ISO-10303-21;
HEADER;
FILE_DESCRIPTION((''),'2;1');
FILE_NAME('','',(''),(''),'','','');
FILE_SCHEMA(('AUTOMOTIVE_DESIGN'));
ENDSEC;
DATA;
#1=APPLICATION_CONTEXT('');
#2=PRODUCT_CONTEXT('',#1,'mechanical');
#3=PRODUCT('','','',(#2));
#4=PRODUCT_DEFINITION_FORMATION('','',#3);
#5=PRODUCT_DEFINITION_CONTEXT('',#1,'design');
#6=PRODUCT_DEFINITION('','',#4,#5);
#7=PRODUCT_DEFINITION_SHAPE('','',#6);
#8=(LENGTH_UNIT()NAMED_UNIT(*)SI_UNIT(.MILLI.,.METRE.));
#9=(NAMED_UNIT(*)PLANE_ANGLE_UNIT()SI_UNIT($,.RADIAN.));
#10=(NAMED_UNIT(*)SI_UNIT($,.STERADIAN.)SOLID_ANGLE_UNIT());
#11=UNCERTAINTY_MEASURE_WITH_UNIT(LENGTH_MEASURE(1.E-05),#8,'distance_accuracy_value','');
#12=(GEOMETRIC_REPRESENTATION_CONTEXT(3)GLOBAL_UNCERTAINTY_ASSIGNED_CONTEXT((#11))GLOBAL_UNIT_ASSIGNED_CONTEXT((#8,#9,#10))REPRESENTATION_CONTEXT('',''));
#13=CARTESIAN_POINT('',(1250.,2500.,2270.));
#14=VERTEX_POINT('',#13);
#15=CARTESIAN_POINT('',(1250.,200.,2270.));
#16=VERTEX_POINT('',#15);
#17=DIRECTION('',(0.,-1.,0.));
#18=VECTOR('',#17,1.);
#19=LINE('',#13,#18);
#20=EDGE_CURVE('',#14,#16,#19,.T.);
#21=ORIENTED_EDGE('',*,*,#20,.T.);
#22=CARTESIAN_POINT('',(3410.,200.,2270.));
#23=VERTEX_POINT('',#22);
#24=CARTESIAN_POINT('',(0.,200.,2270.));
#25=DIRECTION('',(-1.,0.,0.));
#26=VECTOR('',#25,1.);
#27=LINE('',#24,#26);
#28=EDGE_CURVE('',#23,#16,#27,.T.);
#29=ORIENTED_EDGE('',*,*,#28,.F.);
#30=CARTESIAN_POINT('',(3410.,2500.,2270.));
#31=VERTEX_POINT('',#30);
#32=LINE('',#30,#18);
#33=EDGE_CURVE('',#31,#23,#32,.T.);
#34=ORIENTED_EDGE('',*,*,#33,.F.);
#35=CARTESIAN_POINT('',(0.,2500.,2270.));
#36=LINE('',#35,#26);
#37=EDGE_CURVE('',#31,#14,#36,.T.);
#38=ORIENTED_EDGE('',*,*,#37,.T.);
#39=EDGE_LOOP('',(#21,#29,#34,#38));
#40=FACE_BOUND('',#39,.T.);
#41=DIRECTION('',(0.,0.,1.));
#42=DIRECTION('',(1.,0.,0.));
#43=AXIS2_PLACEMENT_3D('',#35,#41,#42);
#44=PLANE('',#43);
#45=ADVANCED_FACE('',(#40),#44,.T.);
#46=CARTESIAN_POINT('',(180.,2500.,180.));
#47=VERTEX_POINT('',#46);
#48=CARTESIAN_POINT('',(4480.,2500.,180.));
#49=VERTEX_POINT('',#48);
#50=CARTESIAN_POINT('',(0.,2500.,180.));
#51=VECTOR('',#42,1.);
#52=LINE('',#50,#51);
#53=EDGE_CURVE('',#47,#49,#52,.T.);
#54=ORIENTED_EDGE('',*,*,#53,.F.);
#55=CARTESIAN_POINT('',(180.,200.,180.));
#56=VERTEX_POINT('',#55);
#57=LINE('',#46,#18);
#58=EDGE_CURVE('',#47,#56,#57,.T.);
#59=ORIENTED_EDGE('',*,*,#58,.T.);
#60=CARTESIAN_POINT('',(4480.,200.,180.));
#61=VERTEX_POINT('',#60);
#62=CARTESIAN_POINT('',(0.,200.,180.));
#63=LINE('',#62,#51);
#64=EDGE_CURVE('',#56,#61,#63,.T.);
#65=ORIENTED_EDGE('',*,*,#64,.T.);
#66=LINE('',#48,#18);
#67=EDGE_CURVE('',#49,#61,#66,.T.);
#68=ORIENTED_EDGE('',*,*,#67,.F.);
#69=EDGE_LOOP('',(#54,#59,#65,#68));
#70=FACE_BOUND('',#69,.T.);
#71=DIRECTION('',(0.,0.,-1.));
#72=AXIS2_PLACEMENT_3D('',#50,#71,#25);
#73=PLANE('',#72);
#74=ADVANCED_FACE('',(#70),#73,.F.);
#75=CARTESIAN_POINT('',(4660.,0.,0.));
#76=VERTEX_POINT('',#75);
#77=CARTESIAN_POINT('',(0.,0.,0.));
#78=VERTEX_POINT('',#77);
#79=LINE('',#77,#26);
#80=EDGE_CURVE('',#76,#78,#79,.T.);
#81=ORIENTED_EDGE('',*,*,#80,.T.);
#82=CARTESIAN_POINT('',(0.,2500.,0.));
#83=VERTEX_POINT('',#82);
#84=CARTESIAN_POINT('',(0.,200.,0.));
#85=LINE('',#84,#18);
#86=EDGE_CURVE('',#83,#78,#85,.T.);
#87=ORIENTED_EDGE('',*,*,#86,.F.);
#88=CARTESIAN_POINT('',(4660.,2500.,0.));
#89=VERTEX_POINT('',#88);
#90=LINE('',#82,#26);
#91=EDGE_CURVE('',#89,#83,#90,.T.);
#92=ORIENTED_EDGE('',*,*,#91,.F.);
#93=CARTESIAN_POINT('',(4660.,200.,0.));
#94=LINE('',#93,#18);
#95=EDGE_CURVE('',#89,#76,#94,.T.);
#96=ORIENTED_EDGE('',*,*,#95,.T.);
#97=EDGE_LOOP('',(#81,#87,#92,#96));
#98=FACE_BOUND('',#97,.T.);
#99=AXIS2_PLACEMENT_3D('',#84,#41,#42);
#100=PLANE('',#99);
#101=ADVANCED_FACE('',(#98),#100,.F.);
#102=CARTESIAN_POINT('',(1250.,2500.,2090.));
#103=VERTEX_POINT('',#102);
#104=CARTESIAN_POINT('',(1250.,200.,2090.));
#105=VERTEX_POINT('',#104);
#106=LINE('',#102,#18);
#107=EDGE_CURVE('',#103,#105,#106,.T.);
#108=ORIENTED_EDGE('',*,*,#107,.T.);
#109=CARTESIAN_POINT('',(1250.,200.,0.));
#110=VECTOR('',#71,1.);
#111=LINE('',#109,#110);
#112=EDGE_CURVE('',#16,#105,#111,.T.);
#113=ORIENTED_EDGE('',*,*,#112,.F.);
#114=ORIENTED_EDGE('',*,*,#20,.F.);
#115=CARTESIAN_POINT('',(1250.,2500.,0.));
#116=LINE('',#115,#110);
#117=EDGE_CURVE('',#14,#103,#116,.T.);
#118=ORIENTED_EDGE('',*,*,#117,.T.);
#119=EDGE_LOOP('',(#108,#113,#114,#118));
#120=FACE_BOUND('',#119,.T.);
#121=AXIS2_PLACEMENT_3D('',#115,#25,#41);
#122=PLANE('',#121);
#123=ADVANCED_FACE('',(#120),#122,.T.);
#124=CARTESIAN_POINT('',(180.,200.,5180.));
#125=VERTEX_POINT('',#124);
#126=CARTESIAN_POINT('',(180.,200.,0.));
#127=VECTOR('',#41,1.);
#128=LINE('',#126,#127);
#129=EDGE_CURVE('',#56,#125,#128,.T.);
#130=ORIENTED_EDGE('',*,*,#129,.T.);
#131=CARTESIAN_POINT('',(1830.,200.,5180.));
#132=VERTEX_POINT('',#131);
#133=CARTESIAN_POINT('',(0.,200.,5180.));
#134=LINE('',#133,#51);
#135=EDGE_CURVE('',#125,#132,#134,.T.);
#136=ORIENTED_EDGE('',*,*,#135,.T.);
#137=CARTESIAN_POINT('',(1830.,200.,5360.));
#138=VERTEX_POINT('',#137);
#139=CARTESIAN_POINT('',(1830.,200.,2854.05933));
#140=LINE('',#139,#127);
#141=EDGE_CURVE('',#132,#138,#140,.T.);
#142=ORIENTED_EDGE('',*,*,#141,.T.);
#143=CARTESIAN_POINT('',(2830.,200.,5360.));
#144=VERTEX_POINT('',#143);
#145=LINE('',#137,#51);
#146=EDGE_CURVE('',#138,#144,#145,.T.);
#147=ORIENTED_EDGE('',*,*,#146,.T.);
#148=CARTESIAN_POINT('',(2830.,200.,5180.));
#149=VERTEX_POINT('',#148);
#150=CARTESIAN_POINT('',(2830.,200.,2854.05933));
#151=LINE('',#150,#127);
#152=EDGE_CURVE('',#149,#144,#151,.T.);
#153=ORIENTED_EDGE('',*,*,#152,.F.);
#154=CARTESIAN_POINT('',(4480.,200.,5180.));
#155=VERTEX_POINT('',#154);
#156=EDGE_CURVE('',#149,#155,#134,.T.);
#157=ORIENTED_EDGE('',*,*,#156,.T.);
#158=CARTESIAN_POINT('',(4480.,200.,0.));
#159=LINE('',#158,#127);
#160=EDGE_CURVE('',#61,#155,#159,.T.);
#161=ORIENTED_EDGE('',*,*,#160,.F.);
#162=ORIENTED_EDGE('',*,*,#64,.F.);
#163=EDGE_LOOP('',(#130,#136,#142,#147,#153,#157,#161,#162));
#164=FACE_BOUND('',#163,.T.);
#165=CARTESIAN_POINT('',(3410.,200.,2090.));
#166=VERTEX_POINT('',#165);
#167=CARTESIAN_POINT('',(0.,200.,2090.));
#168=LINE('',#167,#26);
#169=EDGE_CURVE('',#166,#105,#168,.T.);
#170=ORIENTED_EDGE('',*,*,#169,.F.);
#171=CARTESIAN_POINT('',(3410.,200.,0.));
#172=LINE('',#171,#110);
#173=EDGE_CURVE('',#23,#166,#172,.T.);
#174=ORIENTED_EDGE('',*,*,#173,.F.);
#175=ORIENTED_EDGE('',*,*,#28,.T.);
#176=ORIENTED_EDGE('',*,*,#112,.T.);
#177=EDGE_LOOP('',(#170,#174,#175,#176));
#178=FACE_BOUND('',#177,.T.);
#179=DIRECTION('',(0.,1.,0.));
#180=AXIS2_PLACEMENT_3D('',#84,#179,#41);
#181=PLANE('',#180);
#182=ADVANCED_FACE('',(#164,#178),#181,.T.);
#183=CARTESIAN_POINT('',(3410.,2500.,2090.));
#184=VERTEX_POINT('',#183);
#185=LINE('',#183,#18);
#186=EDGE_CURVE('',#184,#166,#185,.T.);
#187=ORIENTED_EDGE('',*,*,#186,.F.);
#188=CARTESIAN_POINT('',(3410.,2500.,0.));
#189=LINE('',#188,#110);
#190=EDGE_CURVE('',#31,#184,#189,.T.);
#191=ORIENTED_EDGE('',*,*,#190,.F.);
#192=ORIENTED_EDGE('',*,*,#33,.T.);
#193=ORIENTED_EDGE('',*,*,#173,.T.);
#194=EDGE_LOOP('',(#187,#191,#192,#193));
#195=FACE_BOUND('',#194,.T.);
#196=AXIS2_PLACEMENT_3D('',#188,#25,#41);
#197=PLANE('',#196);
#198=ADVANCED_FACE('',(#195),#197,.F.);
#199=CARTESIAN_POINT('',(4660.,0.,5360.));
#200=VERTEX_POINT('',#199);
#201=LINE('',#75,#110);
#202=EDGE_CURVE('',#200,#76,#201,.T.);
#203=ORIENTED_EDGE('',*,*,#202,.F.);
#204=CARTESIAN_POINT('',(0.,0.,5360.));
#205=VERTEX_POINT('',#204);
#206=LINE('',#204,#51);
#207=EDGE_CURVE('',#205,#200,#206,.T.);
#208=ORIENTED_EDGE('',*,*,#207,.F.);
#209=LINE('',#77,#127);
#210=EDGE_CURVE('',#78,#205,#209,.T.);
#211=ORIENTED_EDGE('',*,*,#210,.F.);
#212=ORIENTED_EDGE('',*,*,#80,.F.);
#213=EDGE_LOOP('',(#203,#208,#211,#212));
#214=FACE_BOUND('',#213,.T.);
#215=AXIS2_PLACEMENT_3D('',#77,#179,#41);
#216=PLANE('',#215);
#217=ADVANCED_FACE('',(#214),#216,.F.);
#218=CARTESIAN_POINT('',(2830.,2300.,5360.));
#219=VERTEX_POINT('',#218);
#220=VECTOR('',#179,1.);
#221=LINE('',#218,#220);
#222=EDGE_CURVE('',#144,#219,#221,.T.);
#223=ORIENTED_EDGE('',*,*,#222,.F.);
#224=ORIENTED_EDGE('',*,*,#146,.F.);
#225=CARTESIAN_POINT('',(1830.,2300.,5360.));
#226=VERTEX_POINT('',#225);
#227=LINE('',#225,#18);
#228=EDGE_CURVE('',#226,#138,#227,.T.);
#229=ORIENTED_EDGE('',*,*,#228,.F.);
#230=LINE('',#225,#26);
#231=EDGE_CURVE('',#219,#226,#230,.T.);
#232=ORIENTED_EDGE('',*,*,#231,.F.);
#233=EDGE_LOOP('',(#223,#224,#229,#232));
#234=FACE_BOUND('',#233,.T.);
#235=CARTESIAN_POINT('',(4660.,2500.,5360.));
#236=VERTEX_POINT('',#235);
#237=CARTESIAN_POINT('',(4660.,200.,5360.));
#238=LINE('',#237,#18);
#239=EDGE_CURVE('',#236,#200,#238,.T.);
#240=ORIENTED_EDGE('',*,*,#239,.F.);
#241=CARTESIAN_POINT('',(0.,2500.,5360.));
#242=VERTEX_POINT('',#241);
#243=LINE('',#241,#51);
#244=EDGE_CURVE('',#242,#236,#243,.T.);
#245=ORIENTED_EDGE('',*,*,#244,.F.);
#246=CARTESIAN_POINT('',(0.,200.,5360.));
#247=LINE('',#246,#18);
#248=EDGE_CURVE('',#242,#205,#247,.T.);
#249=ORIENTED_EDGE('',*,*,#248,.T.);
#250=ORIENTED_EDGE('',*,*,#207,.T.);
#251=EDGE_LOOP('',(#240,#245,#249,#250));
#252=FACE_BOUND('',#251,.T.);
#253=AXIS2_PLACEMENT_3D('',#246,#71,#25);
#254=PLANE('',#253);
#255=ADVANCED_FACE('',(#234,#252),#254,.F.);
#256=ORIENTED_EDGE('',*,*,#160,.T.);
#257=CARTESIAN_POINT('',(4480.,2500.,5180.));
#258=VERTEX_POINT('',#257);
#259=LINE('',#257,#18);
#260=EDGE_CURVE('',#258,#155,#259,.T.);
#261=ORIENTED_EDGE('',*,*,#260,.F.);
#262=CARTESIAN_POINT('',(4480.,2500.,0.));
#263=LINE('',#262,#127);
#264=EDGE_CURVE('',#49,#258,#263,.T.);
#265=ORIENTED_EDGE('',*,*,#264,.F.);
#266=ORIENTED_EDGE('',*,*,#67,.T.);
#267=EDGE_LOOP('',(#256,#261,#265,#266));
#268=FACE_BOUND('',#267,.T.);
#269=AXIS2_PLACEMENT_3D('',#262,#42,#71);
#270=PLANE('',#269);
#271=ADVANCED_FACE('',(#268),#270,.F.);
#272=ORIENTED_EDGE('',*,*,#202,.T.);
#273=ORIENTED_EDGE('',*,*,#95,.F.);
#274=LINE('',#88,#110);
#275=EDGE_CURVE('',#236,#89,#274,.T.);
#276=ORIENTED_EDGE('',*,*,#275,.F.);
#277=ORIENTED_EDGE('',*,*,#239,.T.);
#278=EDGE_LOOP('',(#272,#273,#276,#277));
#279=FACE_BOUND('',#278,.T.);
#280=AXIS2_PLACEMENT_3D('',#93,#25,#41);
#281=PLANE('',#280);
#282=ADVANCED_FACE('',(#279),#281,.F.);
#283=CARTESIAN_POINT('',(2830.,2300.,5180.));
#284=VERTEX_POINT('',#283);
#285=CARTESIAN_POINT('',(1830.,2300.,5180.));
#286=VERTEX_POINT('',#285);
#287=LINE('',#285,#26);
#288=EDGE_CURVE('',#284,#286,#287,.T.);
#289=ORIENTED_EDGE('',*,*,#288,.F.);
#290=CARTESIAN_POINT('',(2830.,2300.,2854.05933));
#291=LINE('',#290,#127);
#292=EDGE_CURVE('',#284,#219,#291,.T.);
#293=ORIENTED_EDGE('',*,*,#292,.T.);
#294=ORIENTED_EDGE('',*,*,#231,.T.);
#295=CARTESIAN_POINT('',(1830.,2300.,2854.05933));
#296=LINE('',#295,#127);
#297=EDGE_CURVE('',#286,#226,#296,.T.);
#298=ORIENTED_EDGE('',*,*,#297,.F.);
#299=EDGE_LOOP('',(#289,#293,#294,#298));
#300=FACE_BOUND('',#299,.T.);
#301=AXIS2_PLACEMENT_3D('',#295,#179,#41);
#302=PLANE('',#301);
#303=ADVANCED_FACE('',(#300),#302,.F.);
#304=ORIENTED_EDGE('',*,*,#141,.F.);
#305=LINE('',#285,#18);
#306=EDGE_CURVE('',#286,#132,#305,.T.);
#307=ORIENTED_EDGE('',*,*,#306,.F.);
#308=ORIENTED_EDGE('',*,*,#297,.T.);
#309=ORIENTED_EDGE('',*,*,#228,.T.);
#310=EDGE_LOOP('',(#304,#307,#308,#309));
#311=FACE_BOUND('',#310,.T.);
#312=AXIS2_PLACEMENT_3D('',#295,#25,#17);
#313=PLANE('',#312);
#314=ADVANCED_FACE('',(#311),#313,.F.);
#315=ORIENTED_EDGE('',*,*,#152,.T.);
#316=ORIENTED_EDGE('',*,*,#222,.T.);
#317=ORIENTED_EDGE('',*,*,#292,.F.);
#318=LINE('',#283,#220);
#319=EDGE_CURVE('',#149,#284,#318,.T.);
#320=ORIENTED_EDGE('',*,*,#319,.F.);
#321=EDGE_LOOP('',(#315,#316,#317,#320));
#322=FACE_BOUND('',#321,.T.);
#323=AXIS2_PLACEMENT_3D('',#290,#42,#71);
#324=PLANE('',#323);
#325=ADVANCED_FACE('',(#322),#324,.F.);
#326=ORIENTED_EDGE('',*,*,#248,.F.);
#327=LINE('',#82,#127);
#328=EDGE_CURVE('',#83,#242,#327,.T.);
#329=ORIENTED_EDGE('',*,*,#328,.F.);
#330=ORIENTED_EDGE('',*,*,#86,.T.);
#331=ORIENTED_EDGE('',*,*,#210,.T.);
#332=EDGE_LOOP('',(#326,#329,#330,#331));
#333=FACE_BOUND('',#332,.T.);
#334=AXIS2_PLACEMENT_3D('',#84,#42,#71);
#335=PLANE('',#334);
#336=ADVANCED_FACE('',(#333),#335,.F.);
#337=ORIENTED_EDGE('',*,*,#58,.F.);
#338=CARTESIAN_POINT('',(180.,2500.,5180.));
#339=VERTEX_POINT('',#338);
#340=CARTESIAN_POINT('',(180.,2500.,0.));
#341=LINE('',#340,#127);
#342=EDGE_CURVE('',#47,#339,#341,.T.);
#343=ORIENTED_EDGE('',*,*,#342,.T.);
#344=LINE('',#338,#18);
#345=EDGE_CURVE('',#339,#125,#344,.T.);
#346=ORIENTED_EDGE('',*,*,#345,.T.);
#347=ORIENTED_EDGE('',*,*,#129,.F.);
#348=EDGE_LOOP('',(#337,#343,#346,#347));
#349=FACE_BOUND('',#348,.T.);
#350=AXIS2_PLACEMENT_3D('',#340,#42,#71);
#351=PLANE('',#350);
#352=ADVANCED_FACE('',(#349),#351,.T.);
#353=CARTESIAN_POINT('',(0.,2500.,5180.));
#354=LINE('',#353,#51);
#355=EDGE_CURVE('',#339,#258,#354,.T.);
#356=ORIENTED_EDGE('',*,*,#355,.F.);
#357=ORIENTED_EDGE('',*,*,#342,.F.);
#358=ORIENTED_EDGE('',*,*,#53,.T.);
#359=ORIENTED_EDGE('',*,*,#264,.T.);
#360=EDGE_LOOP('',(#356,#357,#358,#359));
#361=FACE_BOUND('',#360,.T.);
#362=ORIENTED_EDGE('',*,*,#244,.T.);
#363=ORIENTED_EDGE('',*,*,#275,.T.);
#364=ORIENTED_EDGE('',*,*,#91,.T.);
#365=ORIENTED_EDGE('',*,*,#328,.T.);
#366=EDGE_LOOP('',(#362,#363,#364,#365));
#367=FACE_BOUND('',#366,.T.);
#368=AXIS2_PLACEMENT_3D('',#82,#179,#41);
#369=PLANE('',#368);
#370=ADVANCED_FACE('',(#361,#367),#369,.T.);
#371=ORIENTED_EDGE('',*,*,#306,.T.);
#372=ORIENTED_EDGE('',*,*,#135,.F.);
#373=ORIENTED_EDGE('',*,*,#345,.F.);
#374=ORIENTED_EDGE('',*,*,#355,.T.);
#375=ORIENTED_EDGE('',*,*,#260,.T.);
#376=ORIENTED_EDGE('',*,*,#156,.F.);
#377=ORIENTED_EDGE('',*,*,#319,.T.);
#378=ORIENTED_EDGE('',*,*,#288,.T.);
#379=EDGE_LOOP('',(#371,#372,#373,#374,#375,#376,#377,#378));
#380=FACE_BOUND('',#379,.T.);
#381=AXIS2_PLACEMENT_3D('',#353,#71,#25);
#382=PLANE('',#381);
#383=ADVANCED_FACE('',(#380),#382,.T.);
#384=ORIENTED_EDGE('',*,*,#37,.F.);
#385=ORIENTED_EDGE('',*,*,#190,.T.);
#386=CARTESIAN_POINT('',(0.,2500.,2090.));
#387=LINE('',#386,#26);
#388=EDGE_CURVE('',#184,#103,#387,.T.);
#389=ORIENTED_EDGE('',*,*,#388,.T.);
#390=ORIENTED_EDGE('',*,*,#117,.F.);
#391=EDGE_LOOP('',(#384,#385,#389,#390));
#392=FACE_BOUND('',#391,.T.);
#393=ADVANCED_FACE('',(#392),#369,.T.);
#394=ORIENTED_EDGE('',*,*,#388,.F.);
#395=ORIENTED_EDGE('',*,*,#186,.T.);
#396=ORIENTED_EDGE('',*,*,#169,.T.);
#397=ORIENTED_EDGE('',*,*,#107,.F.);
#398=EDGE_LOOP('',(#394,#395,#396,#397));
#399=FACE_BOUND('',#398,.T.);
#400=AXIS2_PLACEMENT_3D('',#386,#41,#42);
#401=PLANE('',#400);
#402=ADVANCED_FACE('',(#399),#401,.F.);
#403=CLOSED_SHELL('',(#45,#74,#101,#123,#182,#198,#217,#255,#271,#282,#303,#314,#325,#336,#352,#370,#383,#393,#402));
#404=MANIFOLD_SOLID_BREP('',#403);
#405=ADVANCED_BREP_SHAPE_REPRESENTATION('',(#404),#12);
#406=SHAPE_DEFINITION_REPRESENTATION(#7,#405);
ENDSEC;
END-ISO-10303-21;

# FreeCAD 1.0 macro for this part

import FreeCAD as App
import Part
import Sketcher

V = App.Vector
Q = App.Units.Quantity

doc = App.newDocument("Part")
body = doc.addObject("PartDesign::Body", "Body")

# Sketch on XZ plane
sketch1 = doc.addObject("Sketcher::SketchObject", "Sketch")
body.addObject(sketch1)
sketch1.AttachmentSupport = (doc.XZ_Plane, [""])
sketch1.MapMode = "FlatFace"
sketch1.addGeometry([
    Part.LineSegment(V(0, 0, 0), V(0, 5360, 0)),
    Part.LineSegment(V(0, 5360, 0), V(4660, 5360, 0)),
    Part.LineSegment(V(4660, 5360, 0), V(4660, 0, 0)),
    Part.LineSegment(V(4660, 0, 0), V(0, 0, 0)),
], False)
sketch1.addConstraint([
    Sketcher.Constraint("Coincident", 0, 2, 1, 1),
    Sketcher.Constraint("Coincident", 1, 2, 2, 1),
    Sketcher.Constraint("Coincident", 2, 2, 3, 1),
    Sketcher.Constraint("Coincident", 3, 2, 0, 1),
    Sketcher.Constraint("Vertical", 0),
    Sketcher.Constraint("Horizontal", 1),
    Sketcher.Constraint("Vertical", 2),
    Sketcher.Constraint("Horizontal", 3),
    Sketcher.Constraint("Coincident", 3, 2, -1, 1),
    Sketcher.Constraint("DistanceX", 1, 1, 1, 2, Q("4660 mm")),
    Sketcher.Constraint("DistanceY", 0, 1, 0, 2, Q("5360 mm")),
])
pad1 = doc.addObject("PartDesign::Pad", "Pad")
body.addObject(pad1)
pad1.Profile = sketch1
pad1.Length = 200
pad1.Reversed = True

# Sketch on XZ plane
sketch2 = doc.addObject("Sketcher::SketchObject", "Sketch001")
body.addObject(sketch2)
sketch2.AttachmentSupport = (doc.XZ_Plane, [""])
sketch2.MapMode = "FlatFace"
sketch2.AttachmentOffset = App.Placement(V(0, 0, -200), App.Rotation())
sketch2.addGeometry([
    Part.LineSegment(V(0, 0, 0), V(0, 5360, 0)),  # 0
    Part.LineSegment(V(0, 5360, 0), V(4660, 5360, 0)),  # 1
    Part.LineSegment(V(4660, 5360, 0), V(4660, 0, 0)),  # 2
    Part.LineSegment(V(4660, 0, 0), V(0, 0, 0)),  # 3
    Part.LineSegment(V(4480, 5180, 0), V(180, 5180, 0)),  # 4
    Part.LineSegment(V(180, 5180, 0), V(180, 180, 0)),  # 5
    Part.LineSegment(V(180, 180, 0), V(4480, 180, 0)),  # 6
    Part.LineSegment(V(4480, 180, 0), V(4480, 5180, 0)),  # 7
    Part.LineSegment(V(1250, 2090, 0), V(1250, 2270, 0)),  # 8
    Part.LineSegment(V(1250, 2270, 0), V(3410, 2270, 0)),  # 9
    Part.LineSegment(V(3410, 2270, 0), V(3410, 2090, 0)),  # 10
    Part.LineSegment(V(3410, 2090, 0), V(1250, 2090, 0)),  # 11
], False)
sketch2.addConstraint([
    Sketcher.Constraint("Coincident", 0, 2, 1, 1),
    Sketcher.Constraint("Coincident", 1, 2, 2, 1),
    Sketcher.Constraint("Coincident", 2, 2, 3, 1),
    Sketcher.Constraint("Coincident", 3, 2, 0, 1),
    Sketcher.Constraint("Coincident", 4, 2, 5, 1),
    Sketcher.Constraint("Coincident", 5, 2, 6, 1),
    Sketcher.Constraint("Coincident", 6, 2, 7, 1),
    Sketcher.Constraint("Coincident", 7, 2, 4, 1),
    Sketcher.Constraint("Coincident", 8, 2, 9, 1),
    Sketcher.Constraint("Coincident", 9, 2, 10, 1),
    Sketcher.Constraint("Coincident", 10, 2, 11, 1),
    Sketcher.Constraint("Coincident", 11, 2, 8, 1),
    Sketcher.Constraint("Vertical", 0),
    Sketcher.Constraint("Horizontal", 1),
    Sketcher.Constraint("Vertical", 2),
    Sketcher.Constraint("Horizontal", 3),
    Sketcher.Constraint("Horizontal", 4),
    Sketcher.Constraint("Vertical", 5),
    Sketcher.Constraint("Horizontal", 6),
    Sketcher.Constraint("Vertical", 7),
    Sketcher.Constraint("Vertical", 8),
    Sketcher.Constraint("Horizontal", 9),
    Sketcher.Constraint("Vertical", 10),
    Sketcher.Constraint("Horizontal", 11),
    Sketcher.Constraint("Coincident", 3, 2, -1, 1),
    Sketcher.Constraint("DistanceX", 1, 1, 1, 2, Q("4660 mm")),
    Sketcher.Constraint("DistanceX", 4, 2, 4, 1, Q("4300 mm")),
    Sketcher.Constraint("DistanceX", 9, 1, 9, 2, Q("2160 mm")),
    Sketcher.Constraint("DistanceY", 0, 1, 0, 2, Q("5360 mm")),
    Sketcher.Constraint("DistanceY", 5, 2, 5, 1, Q("5000 mm")),
    Sketcher.Constraint("DistanceY", 8, 1, 8, 2, Q("180 mm")),
    Sketcher.Constraint("DistanceX", -1, 1, 4, 2, Q("180 mm")),
    Sketcher.Constraint("DistanceY", -1, 1, 4, 2, Q("5180 mm")),
    Sketcher.Constraint("DistanceX", -1, 1, 8, 2, Q("1250 mm")),
    Sketcher.Constraint("DistanceY", -1, 1, 8, 2, Q("2270 mm")),
])
pad2 = doc.addObject("PartDesign::Pad", "Pad001")
body.addObject(pad2)
pad2.Profile = sketch2
pad2.Length = 2300
pad2.Reversed = True

# Sketch on XY plane
sketch3 = doc.addObject("Sketcher::SketchObject", "Sketch002")
body.addObject(sketch3)
sketch3.AttachmentSupport = (doc.XY_Plane, [""])
sketch3.MapMode = "FlatFace"
sketch3.AttachmentOffset = App.Placement(V(0, 0, 5360), App.Rotation())
sketch3.addGeometry([
    Part.LineSegment(V(1830, 2300, 0), V(1830, 200, 0)),
    Part.LineSegment(V(1830, 200, 0), V(2830, 200, 0)),
    Part.LineSegment(V(2830, 200, 0), V(2830, 2300, 0)),
    Part.LineSegment(V(2830, 2300, 0), V(1830, 2300, 0)),
], False)
sketch3.addConstraint([
    Sketcher.Constraint("Coincident", 0, 2, 1, 1),
    Sketcher.Constraint("Coincident", 1, 2, 2, 1),
    Sketcher.Constraint("Coincident", 2, 2, 3, 1),
    Sketcher.Constraint("Coincident", 3, 2, 0, 1),
    Sketcher.Constraint("Vertical", 0),
    Sketcher.Constraint("Horizontal", 1),
    Sketcher.Constraint("Vertical", 2),
    Sketcher.Constraint("Horizontal", 3),
    Sketcher.Constraint("DistanceX", 1, 1, 1, 2, Q("1000 mm")),
    Sketcher.Constraint("DistanceY", 0, 2, 0, 1, Q("2100 mm")),
    Sketcher.Constraint("DistanceX", -1, 1, 0, 2, Q("1830 mm")),
    Sketcher.Constraint("DistanceY", -1, 1, 0, 2, Q("200 mm")),
])
pocket1 = doc.addObject("PartDesign::Pocket", "Pocket")
body.addObject(pocket1)
pocket1.Profile = sketch3
pocket1.Length = 180

doc.recompute()
